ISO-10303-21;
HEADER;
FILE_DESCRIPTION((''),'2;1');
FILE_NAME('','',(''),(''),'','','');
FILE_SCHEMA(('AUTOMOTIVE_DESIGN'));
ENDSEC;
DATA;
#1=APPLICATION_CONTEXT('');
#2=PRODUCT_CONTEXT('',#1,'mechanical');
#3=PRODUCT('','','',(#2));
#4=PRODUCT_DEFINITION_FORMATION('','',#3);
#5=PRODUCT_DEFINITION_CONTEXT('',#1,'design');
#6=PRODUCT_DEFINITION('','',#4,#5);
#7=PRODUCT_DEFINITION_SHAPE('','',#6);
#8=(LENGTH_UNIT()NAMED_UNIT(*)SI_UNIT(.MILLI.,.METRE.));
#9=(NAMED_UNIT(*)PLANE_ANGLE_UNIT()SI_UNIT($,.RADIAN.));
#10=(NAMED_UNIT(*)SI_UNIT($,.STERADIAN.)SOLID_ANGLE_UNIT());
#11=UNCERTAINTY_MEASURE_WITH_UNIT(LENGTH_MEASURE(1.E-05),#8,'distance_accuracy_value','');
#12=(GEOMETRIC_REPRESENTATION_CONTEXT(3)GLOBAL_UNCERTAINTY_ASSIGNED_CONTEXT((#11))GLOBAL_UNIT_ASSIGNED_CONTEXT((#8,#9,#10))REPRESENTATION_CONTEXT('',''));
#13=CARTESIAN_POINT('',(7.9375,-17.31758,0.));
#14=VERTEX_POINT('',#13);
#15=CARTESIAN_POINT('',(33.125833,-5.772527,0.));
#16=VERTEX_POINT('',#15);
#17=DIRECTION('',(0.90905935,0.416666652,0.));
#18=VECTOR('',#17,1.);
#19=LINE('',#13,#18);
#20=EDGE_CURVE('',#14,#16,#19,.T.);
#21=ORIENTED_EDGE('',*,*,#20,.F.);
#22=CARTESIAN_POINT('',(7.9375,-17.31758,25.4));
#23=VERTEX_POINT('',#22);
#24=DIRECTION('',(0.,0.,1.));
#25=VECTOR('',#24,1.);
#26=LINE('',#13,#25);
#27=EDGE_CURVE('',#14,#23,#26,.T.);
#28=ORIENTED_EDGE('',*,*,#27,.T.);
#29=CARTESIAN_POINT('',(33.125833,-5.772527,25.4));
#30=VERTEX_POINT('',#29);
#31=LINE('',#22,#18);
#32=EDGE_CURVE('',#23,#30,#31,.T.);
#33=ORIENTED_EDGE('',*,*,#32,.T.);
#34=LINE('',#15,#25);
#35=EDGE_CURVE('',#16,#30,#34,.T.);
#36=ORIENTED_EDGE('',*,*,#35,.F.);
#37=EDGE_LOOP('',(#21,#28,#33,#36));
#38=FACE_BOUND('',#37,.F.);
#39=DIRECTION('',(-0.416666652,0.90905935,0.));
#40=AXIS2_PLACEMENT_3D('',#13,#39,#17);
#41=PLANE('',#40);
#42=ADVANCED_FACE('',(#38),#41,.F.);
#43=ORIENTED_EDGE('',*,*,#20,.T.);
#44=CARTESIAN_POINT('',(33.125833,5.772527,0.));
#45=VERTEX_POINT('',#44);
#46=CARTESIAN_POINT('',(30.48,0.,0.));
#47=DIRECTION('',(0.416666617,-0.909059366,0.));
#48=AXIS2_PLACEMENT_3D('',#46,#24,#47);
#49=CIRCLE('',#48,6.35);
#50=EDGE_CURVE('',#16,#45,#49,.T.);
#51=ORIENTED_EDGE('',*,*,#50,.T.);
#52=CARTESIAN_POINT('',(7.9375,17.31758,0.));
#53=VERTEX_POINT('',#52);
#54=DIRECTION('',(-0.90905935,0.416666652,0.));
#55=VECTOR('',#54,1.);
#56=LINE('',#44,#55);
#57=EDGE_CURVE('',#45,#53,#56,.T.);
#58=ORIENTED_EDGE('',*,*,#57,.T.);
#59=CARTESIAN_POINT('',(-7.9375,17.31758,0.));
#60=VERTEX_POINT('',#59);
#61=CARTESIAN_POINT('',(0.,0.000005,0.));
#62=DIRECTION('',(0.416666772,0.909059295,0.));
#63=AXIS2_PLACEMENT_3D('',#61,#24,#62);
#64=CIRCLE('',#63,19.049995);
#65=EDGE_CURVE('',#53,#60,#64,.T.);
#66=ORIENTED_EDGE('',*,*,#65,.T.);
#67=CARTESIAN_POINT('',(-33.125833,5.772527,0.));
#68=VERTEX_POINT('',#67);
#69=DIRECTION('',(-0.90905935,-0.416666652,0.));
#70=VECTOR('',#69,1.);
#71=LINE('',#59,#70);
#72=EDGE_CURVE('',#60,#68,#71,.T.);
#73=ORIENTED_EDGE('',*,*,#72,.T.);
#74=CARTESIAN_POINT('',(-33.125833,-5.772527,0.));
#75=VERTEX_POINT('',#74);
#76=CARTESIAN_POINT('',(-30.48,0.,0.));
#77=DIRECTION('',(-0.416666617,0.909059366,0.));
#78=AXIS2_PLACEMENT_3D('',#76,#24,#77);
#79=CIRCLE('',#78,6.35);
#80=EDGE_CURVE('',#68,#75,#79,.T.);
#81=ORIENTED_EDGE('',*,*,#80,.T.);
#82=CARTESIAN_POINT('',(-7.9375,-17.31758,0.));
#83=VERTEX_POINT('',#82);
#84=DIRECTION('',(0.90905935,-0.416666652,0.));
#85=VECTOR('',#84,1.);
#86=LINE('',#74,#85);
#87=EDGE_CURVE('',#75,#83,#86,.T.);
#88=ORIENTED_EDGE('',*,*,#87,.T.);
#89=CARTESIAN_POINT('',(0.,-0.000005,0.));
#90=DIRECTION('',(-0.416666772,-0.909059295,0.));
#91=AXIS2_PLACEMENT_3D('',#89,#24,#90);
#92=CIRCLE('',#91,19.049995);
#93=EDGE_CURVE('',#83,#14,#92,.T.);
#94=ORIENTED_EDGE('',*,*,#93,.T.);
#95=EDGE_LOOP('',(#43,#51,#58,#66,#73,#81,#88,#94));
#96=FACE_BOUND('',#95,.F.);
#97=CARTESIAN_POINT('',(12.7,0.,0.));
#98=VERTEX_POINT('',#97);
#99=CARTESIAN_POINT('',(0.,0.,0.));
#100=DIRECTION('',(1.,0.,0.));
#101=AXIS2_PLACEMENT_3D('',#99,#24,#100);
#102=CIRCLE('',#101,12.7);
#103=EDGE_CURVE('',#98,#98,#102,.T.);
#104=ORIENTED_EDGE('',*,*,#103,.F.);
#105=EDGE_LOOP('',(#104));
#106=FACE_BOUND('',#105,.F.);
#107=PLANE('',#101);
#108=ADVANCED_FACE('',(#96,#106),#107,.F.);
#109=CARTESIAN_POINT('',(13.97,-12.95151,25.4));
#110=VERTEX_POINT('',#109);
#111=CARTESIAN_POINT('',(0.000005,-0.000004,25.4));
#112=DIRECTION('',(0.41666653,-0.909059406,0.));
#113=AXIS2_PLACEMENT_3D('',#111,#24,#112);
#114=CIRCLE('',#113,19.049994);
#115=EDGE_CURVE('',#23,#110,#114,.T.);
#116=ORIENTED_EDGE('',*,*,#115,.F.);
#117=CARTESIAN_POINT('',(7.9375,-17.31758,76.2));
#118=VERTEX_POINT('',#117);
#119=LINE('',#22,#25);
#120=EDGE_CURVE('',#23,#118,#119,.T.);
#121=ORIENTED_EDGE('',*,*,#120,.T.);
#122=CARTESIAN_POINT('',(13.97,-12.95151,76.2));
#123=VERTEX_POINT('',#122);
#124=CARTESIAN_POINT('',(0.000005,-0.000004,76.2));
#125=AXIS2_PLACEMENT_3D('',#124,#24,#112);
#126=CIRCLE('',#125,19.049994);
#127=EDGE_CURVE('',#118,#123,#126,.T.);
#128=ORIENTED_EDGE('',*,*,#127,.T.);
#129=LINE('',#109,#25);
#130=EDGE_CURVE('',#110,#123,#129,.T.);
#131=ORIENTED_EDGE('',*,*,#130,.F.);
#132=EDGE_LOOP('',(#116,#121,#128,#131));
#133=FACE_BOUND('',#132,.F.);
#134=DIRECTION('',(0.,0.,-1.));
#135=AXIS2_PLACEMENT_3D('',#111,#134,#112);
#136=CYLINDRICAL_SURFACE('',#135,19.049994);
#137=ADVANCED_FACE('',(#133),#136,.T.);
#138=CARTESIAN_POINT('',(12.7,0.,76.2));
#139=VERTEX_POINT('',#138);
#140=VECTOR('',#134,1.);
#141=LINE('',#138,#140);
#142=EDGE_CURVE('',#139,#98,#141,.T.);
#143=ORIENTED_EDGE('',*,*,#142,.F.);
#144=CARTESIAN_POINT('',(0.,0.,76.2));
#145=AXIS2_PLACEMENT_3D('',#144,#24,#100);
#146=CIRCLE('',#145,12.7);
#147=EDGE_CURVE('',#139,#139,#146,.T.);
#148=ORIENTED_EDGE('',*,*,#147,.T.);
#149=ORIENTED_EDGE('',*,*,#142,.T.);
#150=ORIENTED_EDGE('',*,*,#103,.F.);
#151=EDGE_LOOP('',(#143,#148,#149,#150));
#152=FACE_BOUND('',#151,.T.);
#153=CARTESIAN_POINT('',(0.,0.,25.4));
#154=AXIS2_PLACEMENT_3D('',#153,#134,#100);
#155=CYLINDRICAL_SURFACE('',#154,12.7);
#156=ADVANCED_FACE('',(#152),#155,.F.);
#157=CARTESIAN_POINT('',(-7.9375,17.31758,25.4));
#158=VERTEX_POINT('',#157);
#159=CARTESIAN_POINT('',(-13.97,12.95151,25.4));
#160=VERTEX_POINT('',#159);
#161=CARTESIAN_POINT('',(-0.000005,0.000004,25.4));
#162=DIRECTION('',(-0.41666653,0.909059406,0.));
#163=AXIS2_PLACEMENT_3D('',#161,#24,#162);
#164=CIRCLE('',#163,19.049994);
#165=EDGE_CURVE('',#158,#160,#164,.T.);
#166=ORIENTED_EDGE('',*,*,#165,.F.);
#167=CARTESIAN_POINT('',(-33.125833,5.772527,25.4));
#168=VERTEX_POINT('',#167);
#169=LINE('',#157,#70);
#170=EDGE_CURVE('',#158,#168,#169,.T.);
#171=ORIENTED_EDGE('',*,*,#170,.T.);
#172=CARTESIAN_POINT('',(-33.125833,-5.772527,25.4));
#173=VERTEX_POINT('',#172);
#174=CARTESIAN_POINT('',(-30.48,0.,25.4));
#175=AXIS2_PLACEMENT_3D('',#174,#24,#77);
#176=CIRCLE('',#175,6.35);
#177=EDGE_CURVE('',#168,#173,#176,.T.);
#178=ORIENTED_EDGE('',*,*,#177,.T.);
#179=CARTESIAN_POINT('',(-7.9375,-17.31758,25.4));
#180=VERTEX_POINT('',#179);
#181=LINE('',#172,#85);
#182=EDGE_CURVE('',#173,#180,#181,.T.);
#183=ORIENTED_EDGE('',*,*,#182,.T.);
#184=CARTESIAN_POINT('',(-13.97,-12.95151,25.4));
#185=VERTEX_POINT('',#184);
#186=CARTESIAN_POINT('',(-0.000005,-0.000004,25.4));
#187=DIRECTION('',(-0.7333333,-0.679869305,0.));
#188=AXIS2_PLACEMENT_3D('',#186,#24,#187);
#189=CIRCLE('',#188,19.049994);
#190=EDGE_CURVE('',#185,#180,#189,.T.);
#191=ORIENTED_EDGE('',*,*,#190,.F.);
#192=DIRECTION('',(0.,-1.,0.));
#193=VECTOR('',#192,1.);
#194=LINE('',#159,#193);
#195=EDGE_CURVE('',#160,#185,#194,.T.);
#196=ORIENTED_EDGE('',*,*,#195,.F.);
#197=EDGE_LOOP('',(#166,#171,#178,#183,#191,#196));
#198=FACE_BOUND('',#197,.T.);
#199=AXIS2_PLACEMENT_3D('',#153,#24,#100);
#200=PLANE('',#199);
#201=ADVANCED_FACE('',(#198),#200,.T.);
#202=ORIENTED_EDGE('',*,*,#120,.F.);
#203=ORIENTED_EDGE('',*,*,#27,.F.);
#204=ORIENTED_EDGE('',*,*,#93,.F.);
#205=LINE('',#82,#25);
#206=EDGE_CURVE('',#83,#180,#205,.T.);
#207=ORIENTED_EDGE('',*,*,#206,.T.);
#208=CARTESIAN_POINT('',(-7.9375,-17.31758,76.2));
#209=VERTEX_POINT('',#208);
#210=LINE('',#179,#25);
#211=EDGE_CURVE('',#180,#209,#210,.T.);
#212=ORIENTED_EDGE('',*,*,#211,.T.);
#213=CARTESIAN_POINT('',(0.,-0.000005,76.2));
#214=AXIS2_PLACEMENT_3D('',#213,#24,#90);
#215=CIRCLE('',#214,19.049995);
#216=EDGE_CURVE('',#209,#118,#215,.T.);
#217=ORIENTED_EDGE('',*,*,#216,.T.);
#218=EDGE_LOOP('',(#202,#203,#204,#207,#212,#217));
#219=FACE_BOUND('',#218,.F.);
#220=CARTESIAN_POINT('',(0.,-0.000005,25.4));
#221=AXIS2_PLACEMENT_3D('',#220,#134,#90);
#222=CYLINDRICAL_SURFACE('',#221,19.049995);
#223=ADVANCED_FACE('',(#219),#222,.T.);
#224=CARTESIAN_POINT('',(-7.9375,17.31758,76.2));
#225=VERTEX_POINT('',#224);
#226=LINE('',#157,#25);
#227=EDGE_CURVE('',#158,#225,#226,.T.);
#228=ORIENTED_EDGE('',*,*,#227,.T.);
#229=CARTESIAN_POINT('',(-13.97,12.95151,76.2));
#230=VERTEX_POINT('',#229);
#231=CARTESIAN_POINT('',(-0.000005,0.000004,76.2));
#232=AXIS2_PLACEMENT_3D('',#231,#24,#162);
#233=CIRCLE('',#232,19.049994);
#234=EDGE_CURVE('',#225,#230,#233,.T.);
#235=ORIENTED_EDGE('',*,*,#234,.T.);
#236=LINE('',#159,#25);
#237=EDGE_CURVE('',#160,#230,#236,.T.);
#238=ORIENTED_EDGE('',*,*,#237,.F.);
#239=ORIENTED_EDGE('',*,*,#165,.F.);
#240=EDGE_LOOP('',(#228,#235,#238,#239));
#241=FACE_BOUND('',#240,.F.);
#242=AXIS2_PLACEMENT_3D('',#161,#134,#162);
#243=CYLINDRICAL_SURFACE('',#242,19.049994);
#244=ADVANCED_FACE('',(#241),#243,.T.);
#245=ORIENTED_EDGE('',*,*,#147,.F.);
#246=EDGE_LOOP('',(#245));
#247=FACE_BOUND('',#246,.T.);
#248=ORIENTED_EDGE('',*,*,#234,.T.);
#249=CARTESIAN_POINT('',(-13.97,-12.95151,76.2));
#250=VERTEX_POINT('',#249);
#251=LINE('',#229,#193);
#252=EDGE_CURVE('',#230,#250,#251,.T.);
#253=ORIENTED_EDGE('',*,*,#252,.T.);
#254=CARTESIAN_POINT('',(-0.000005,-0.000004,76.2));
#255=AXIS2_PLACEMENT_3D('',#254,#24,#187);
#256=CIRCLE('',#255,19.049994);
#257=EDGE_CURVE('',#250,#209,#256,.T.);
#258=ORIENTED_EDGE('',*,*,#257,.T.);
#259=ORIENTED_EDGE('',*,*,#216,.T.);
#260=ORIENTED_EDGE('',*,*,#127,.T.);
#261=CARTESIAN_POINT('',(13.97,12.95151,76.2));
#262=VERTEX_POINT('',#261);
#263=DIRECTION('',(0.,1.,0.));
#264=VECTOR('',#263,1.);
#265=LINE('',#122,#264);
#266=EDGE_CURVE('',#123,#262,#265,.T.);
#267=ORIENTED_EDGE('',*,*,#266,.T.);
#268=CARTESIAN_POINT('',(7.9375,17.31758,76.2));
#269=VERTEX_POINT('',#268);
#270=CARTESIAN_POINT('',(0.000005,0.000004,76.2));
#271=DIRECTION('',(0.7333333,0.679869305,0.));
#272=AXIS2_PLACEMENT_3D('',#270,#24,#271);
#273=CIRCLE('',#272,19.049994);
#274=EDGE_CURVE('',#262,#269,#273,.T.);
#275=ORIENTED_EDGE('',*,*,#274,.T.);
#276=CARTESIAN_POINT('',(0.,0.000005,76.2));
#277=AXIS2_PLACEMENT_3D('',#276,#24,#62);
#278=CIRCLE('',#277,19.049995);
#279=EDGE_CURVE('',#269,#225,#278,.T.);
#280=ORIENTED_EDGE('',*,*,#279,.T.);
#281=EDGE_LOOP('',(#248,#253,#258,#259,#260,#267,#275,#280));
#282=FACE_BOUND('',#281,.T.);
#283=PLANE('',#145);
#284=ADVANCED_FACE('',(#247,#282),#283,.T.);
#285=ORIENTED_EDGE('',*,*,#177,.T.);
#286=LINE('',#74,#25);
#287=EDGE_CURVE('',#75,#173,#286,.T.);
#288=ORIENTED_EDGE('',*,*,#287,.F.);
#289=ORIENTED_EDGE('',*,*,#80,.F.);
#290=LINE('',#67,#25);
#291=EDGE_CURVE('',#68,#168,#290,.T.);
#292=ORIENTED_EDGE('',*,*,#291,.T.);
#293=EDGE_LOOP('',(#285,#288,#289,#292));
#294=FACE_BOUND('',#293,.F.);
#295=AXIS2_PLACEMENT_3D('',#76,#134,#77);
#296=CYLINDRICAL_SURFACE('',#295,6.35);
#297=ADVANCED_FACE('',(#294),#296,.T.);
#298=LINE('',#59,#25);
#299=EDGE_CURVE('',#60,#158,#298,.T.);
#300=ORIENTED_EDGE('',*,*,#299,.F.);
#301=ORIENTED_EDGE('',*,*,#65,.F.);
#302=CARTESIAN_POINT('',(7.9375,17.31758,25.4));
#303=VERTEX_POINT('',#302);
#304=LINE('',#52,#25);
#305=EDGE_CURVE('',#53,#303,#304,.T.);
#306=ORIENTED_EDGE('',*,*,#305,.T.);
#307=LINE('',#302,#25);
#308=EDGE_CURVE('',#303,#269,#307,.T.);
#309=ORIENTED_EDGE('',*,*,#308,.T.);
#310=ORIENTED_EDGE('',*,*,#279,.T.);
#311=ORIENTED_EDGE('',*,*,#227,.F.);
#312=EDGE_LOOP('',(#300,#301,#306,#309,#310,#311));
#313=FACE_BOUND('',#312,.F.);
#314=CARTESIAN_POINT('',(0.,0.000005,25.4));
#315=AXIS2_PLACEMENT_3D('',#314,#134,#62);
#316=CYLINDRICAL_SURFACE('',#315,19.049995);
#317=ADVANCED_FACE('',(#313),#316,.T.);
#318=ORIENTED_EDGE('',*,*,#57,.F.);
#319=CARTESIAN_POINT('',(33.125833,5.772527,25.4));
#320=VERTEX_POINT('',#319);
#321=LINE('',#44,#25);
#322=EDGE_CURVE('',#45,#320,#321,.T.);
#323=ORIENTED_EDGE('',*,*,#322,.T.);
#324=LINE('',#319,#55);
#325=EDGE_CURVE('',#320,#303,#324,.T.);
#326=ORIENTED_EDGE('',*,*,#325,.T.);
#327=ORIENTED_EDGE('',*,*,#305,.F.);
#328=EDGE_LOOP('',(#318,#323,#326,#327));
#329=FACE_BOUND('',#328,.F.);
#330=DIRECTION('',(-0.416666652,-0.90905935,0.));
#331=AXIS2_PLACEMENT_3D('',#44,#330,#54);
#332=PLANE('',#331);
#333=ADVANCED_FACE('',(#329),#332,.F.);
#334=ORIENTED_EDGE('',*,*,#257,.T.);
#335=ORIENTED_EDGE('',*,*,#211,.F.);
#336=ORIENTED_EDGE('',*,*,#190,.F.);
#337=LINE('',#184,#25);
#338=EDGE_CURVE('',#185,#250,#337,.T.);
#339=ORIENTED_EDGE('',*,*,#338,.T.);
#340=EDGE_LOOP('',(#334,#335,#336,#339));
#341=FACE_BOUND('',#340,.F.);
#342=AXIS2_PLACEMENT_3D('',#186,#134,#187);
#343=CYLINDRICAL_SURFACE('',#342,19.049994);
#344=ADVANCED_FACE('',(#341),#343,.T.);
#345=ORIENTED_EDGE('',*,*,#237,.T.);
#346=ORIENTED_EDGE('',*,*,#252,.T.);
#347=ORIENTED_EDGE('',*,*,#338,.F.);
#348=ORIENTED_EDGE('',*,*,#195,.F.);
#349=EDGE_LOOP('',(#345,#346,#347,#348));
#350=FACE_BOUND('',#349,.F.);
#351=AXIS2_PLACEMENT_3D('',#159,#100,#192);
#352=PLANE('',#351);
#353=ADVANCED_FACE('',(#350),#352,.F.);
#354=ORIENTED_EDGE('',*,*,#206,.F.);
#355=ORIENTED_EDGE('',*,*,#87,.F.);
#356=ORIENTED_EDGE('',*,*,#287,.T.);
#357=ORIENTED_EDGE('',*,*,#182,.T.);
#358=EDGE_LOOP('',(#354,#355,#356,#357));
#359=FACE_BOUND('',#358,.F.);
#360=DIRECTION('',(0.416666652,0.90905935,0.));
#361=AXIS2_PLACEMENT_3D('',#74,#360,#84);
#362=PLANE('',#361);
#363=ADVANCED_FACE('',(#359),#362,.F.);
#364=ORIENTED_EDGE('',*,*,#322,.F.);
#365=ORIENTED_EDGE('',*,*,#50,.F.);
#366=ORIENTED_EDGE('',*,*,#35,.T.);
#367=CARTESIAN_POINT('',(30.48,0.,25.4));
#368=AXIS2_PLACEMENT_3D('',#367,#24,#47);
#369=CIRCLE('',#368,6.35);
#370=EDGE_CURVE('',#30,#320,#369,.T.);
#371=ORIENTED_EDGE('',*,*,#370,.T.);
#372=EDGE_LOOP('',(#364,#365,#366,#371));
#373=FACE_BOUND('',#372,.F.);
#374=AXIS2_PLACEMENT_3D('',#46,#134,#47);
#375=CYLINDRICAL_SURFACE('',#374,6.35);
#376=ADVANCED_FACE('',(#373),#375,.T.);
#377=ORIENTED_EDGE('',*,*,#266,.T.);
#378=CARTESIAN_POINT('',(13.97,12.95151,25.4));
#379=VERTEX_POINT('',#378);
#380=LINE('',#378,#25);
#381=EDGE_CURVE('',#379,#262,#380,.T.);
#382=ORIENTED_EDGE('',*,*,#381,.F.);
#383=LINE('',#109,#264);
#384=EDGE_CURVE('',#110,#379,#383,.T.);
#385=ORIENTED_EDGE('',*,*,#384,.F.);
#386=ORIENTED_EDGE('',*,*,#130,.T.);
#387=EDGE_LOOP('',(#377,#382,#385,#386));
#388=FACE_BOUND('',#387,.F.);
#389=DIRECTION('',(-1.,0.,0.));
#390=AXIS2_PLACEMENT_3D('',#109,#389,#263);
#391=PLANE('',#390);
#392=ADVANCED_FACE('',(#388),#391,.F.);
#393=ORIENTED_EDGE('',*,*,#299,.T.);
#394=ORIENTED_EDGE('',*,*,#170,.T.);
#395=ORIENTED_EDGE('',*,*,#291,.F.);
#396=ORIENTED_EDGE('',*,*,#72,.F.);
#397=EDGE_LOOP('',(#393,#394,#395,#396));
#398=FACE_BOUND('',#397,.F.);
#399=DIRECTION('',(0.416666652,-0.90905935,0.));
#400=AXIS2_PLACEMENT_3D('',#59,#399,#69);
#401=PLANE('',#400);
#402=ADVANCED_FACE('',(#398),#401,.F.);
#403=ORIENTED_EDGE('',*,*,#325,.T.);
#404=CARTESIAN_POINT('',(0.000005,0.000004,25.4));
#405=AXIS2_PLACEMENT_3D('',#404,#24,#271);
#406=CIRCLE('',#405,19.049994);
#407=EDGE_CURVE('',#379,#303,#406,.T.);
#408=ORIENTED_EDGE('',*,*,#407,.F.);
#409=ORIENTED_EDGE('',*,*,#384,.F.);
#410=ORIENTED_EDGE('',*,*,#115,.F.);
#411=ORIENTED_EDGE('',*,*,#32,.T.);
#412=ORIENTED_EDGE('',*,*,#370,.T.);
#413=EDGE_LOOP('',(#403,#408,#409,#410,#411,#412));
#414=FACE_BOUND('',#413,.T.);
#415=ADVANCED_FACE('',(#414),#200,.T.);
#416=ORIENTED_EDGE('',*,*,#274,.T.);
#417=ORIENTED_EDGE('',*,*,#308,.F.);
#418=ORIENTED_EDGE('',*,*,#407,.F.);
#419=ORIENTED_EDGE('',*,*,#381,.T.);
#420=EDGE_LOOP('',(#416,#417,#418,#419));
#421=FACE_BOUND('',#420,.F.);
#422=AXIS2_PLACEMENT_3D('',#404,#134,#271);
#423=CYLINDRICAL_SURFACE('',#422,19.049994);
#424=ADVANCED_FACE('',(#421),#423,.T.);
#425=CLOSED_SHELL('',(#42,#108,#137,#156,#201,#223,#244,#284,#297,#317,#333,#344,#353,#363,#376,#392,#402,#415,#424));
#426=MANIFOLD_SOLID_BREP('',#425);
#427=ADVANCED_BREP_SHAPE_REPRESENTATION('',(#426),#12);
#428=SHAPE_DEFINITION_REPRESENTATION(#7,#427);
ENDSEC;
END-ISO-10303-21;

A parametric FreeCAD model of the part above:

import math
import FreeCAD as App
import Part
import Sketcher

V = App.Vector
Q = App.Units.Quantity

doc = App.newDocument("Part")
body = doc.addObject("PartDesign::Body", "Body")

# Sketch on XY plane
sketch1 = doc.addObject("Sketcher::SketchObject", "Sketch")
body.addObject(sketch1)
sketch1.AttachmentSupport = (doc.XY_Plane, [""])
sketch1.MapMode = "FlatFace"
sketch1.addGeometry([
    Part.LineSegment(V(-33, -6, 0), V(-8, -17, 0)),  # 0
    Part.ArcOfCircle(Part.Circle(V(0, 0, 0), V(0, 0, 1), 19), math.radians(-115), math.radians(-65)),  # 1
    Part.LineSegment(V(8, -17, 0), V(33, -6, 0)),  # 2
    Part.ArcOfCircle(Part.Circle(V(30, 0, 0), V(0, 0, 1), 6), math.radians(-65), math.radians(65)),  # 3
    Part.LineSegment(V(33, 6, 0), V(8, 17, 0)),  # 4
    Part.ArcOfCircle(Part.Circle(V(0, 0, 0), V(0, 0, 1), 19), math.radians(65), math.radians(115)),  # 5
    Part.LineSegment(V(-8, 17, 0), V(-33, 6, 0)),  # 6
    Part.ArcOfCircle(Part.Circle(V(-30, 0, 0), V(0, 0, 1), 6), math.radians(115), math.radians(245)),  # 7
    Part.Circle(V(0, 0, 0), V(0, 0, 1), 13),  # 8
], False)
sketch1.addConstraint([
    Sketcher.Constraint("Tangent", 0, 2, 1, 1),
    Sketcher.Constraint("Tangent", 1, 2, 2, 1),
    Sketcher.Constraint("Tangent", 2, 2, 3, 1),
    Sketcher.Constraint("Tangent", 3, 2, 4, 1),
    Sketcher.Constraint("Tangent", 4, 2, 5, 1),
    Sketcher.Constraint("Tangent", 5, 2, 6, 1),
    Sketcher.Constraint("Tangent", 6, 2, 7, 1),
    Sketcher.Constraint("Tangent", 7, 2, 0, 1),
    Sketcher.Constraint("Coincident", 1, 3, -1, 1),
    Sketcher.Constraint("Coincident", 5, 3, -1, 1),
    Sketcher.Constraint("Coincident", 8, 3, -1, 1),
    Sketcher.Constraint("Equal", 1, 5),
    Sketcher.Constraint("Equal", 3, 7),
    Sketcher.Constraint("Symmetric", 3, 3, 7, 3, -1, 1),
    Sketcher.Constraint("PointOnObject", 3, 3, -1),
    Sketcher.Constraint("Diameter", 8, Q("1 in")),
    Sketcher.Constraint("Radius", 1, Q("0.7499998 in")),
    Sketcher.Constraint("Radius", 3, Q("0.25 in")),
    Sketcher.Constraint("DistanceX", -1, 1, 3, 3, Q("1.2 in")),
])
pad1 = doc.addObject("PartDesign::Pad", "Pad")
body.addObject(pad1)
pad1.Profile = sketch1
pad1.Length = Q("1 in")

# Sketch on XY plane
sketch2 = doc.addObject("Sketcher::SketchObject", "Sketch001")
body.addObject(sketch2)
sketch2.AttachmentSupport = (doc.XY_Plane, [""])
sketch2.MapMode = "FlatFace"
sketch2.AttachmentOffset = App.Placement(V(0, 0, 1 * 25.4), App.Rotation())
sketch2.addGeometry([
    Part.LineSegment(V(14, -13, 0), V(14, 13, 0)),  # 0
    Part.ArcOfCircle(Part.Circle(V(0, 0, 0), V(0, 0, 1), 19), math.radians(43), math.radians(65)),  # 1
    Part.ArcOfCircle(Part.Circle(V(0, 0, 0), V(0, 0, 1), 19), math.radians(65), math.radians(115)),  # 2
    Part.ArcOfCircle(Part.Circle(V(0, 0, 0), V(0, 0, 1), 19), math.radians(115), math.radians(137)),  # 3
    Part.LineSegment(V(-14, 13, 0), V(-14, -13, 0)),  # 4
    Part.ArcOfCircle(Part.Circle(V(0, 0, 0), V(0, 0, 1), 19), math.radians(-137), math.radians(-115)),  # 5
    Part.ArcOfCircle(Part.Circle(V(0, 0, 0), V(0, 0, 1), 19), math.radians(-115), math.radians(-65)),  # 6
    Part.ArcOfCircle(Part.Circle(V(0, 0, 0), V(0, 0, 1), 19), math.radians(-65), math.radians(-43)),  # 7
    Part.Circle(V(0, 0, 0), V(0, 0, 1), 13),  # 8
], False)
sketch2.addConstraint([
    Sketcher.Constraint("Coincident", 0, 2, 1, 1),
    Sketcher.Constraint("Tangent", 1, 2, 2, 1),
    Sketcher.Constraint("Tangent", 2, 2, 3, 1),
    Sketcher.Constraint("Coincident", 3, 2, 4, 1),
    Sketcher.Constraint("Coincident", 4, 2, 5, 1),
    Sketcher.Constraint("Tangent", 5, 2, 6, 1),
    Sketcher.Constraint("Tangent", 6, 2, 7, 1),
    Sketcher.Constraint("Coincident", 7, 2, 0, 1),
    Sketcher.Constraint("Vertical", 0),
    Sketcher.Constraint("Vertical", 4),
    Sketcher.Constraint("Coincident", 1, 3, -1, 1),
    Sketcher.Constraint("Coincident", 3, 3, -1, 1),
    Sketcher.Constraint("Coincident", 5, 3, -1, 1),
    Sketcher.Constraint("Coincident", 7, 3, -1, 1),
    Sketcher.Constraint("Coincident", 8, 3, -1, 1),
    Sketcher.Constraint("Equal", 3, 5),
    Sketcher.Constraint("Horizontal", 1, 2, 2, 2),
    Sketcher.Constraint("Horizontal", 0, 2, 3, 2),
    Sketcher.Constraint("Horizontal", 5, 2, 6, 2),
    Sketcher.Constraint("Vertical", 2, 2, 5, 2),
    Sketcher.Constraint("Diameter", 8, Q("1 in")),
    Sketcher.Constraint("Radius", 2, Q("0.7499998 in")),
    Sketcher.Constraint("DistanceX", -1, 1, 0, 2, Q("0.55 in")),
    Sketcher.Constraint("DistanceX", -1, 1, 1, 2, Q("0.3125 in")),
])
pad2 = doc.addObject("PartDesign::Pad", "Pad001")
body.addObject(pad2)
pad2.Profile = sketch2
pad2.Length = Q("2 in")

doc.recompute()
